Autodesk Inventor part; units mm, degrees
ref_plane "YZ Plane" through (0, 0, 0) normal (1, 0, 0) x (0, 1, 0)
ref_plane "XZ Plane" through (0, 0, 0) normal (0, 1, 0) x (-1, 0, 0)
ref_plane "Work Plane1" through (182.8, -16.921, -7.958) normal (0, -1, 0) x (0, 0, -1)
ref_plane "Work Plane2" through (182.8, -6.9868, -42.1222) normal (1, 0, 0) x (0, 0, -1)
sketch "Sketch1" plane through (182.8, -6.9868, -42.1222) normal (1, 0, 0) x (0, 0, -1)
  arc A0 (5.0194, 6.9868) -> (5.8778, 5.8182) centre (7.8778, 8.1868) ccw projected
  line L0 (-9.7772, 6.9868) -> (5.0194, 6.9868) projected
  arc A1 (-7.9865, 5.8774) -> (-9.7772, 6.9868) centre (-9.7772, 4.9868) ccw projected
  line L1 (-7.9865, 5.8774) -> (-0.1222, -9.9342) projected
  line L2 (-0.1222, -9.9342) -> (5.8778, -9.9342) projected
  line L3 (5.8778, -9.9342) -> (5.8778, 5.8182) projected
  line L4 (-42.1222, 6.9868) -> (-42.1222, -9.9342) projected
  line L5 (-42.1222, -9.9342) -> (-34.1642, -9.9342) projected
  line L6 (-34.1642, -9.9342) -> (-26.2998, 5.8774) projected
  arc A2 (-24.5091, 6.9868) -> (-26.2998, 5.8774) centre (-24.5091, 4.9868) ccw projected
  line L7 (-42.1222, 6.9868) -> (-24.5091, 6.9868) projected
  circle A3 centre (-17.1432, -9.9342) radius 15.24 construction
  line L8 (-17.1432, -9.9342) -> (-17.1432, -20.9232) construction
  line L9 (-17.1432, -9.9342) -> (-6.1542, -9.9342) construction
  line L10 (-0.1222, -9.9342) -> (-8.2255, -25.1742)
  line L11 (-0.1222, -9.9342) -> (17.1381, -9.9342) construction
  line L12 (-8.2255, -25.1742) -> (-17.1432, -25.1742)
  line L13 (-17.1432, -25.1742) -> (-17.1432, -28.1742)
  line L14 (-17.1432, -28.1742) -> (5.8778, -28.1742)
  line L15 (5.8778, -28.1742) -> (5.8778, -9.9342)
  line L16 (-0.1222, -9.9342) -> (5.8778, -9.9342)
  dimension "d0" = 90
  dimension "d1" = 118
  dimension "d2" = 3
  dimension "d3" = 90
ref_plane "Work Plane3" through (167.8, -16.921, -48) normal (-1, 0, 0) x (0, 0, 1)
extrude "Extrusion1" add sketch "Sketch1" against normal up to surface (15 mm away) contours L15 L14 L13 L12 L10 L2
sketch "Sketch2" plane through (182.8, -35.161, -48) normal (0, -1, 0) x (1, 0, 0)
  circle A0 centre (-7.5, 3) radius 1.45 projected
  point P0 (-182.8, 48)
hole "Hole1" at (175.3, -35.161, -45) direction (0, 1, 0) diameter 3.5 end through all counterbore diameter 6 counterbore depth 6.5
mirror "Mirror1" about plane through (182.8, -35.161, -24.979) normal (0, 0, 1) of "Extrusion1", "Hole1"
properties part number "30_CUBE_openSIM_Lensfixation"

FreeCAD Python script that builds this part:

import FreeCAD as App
import Part
import Sketcher
from FreeCAD import Vector
Q = App.Units.Quantity

doc = App.newDocument("Part")
body = doc.addObject("PartDesign::Body", "Body")

# Sketch on YZ plane
sketch1 = body.newObject("Sketcher::SketchObject", "Sketch")
sketch1.AttachmentSupport = (doc.getObject("YZ_Plane"), [""])
sketch1.MapMode = "FlatFace"
sketch1.AttachmentOffset = App.Placement(Vector(0, 0, 182.8), App.Rotation())
sketch1.addGeometry(Part.LineSegment(Vector(-35.2, -48, 0), Vector(-16.9, -48, 0)), False)
sketch1.addGeometry(Part.LineSegment(Vector(-16.9, -48, 0), Vector(-16.9, -42, 0)), False)
sketch1.addGeometry(Part.LineSegment(Vector(-16.9, -42, 0), Vector(-32.2, -33.9, 0)), False)
sketch1.addGeometry(Part.LineSegment(Vector(-32.2, -33.9, 0), Vector(-32.2, -25, 0)), False)
sketch1.addGeometry(Part.LineSegment(Vector(-32.2, -25, 0), Vector(-35.2, -25, 0)), False)
sketch1.addGeometry(Part.LineSegment(Vector(-35.2, -25, 0), Vector(-35.2, -48, 0)), False)
sketch1.addConstraint(Sketcher.Constraint("Coincident", 0, 2, 1, 1))
sketch1.addConstraint(Sketcher.Constraint("Coincident", 1, 2, 2, 1))
sketch1.addConstraint(Sketcher.Constraint("Coincident", 2, 2, 3, 1))
sketch1.addConstraint(Sketcher.Constraint("Coincident", 3, 2, 4, 1))
sketch1.addConstraint(Sketcher.Constraint("Coincident", 4, 2, 5, 1))
sketch1.addConstraint(Sketcher.Constraint("Coincident", 5, 2, 0, 1))
sketch1.addConstraint(Sketcher.Constraint("Horizontal", 0))
sketch1.addConstraint(Sketcher.Constraint("Vertical", 1))
sketch1.addConstraint(Sketcher.Constraint("Vertical", 3))
sketch1.addConstraint(Sketcher.Constraint("Horizontal", 4))
sketch1.addConstraint(Sketcher.Constraint("Vertical", 5))
sketch1.addConstraint(Sketcher.Constraint("DistanceX", 4, 2, 4, 1, 3.0))
sketch1.addConstraint(Sketcher.Constraint("DistanceY", 1, 1, 1, 2, 6.0))
sketch1.addConstraint(Sketcher.Constraint("Angle", 2, Q("151.9999 deg")))
sketch1.addConstraint(Sketcher.Constraint("DistanceY", 0, 2, -1, 1, 48.0))
sketch1.addConstraint(Sketcher.Constraint("DistanceX", 0, 1, 0, 2, 18.24))
sketch1.addConstraint(Sketcher.Constraint("DistanceY", 5, 2, 5, 1, 23.021))
sketch1.addConstraint(Sketcher.Constraint("DistanceX", 0, 2, -1, 1, 16.921))
pad1 = body.newObject("PartDesign::Pad", "Pad")
pad1.Profile = sketch1
pad1.Length = 15
pad1.Reversed = True

# Sketch on XZ plane
sketch2 = body.newObject("Sketcher::SketchObject", "Sketch001")
sketch2.AttachmentSupport = (doc.getObject("XZ_Plane"), [""])
sketch2.MapMode = "FlatFace"
sketch2.AttachmentOffset = App.Placement(Vector(0, 0, 35.161), App.Rotation())
sketch2.addGeometry(Part.Circle(Vector(175.3, -45, 0), Vector(0, 0, 1), 1.8), False)
sketch2.addConstraint(Sketcher.Constraint("Diameter", 0, 3.5))
sketch2.addConstraint(Sketcher.Constraint("DistanceY", 0, 3, -1, 1, 45.0))
sketch2.addConstraint(Sketcher.Constraint("DistanceX", -1, 1, 0, 3, 175.3))
doc.recompute()
hole = body.newObject("PartDesign::Hole", "Hole")
hole.Profile = sketch2
hole.ThreadType = "None"
hole.Diameter = 3.5
hole.DepthType = "ThroughAll"
hole.HoleCutType = "Counterbore"
hole.HoleCutDiameter = 6
hole.HoleCutDepth = 6.5
doc.recompute()

datumplane = body.newObject("PartDesign::Plane", "DatumPlane")
datumplane.AttachmentSupport = (doc.getObject("XY_Plane"), [""])
datumplane.MapMode = "FlatFace"
datumplane.AttachmentOffset = App.Placement(Vector(0, 0, -24.979), App.Rotation())
mirrored = body.newObject("PartDesign::Mirrored", "Mirrored")
mirrored.Originals = [pad1, hole]
mirrored.MirrorPlane = (datumplane, [""])
body.Tip = mirrored

doc.recompute()
